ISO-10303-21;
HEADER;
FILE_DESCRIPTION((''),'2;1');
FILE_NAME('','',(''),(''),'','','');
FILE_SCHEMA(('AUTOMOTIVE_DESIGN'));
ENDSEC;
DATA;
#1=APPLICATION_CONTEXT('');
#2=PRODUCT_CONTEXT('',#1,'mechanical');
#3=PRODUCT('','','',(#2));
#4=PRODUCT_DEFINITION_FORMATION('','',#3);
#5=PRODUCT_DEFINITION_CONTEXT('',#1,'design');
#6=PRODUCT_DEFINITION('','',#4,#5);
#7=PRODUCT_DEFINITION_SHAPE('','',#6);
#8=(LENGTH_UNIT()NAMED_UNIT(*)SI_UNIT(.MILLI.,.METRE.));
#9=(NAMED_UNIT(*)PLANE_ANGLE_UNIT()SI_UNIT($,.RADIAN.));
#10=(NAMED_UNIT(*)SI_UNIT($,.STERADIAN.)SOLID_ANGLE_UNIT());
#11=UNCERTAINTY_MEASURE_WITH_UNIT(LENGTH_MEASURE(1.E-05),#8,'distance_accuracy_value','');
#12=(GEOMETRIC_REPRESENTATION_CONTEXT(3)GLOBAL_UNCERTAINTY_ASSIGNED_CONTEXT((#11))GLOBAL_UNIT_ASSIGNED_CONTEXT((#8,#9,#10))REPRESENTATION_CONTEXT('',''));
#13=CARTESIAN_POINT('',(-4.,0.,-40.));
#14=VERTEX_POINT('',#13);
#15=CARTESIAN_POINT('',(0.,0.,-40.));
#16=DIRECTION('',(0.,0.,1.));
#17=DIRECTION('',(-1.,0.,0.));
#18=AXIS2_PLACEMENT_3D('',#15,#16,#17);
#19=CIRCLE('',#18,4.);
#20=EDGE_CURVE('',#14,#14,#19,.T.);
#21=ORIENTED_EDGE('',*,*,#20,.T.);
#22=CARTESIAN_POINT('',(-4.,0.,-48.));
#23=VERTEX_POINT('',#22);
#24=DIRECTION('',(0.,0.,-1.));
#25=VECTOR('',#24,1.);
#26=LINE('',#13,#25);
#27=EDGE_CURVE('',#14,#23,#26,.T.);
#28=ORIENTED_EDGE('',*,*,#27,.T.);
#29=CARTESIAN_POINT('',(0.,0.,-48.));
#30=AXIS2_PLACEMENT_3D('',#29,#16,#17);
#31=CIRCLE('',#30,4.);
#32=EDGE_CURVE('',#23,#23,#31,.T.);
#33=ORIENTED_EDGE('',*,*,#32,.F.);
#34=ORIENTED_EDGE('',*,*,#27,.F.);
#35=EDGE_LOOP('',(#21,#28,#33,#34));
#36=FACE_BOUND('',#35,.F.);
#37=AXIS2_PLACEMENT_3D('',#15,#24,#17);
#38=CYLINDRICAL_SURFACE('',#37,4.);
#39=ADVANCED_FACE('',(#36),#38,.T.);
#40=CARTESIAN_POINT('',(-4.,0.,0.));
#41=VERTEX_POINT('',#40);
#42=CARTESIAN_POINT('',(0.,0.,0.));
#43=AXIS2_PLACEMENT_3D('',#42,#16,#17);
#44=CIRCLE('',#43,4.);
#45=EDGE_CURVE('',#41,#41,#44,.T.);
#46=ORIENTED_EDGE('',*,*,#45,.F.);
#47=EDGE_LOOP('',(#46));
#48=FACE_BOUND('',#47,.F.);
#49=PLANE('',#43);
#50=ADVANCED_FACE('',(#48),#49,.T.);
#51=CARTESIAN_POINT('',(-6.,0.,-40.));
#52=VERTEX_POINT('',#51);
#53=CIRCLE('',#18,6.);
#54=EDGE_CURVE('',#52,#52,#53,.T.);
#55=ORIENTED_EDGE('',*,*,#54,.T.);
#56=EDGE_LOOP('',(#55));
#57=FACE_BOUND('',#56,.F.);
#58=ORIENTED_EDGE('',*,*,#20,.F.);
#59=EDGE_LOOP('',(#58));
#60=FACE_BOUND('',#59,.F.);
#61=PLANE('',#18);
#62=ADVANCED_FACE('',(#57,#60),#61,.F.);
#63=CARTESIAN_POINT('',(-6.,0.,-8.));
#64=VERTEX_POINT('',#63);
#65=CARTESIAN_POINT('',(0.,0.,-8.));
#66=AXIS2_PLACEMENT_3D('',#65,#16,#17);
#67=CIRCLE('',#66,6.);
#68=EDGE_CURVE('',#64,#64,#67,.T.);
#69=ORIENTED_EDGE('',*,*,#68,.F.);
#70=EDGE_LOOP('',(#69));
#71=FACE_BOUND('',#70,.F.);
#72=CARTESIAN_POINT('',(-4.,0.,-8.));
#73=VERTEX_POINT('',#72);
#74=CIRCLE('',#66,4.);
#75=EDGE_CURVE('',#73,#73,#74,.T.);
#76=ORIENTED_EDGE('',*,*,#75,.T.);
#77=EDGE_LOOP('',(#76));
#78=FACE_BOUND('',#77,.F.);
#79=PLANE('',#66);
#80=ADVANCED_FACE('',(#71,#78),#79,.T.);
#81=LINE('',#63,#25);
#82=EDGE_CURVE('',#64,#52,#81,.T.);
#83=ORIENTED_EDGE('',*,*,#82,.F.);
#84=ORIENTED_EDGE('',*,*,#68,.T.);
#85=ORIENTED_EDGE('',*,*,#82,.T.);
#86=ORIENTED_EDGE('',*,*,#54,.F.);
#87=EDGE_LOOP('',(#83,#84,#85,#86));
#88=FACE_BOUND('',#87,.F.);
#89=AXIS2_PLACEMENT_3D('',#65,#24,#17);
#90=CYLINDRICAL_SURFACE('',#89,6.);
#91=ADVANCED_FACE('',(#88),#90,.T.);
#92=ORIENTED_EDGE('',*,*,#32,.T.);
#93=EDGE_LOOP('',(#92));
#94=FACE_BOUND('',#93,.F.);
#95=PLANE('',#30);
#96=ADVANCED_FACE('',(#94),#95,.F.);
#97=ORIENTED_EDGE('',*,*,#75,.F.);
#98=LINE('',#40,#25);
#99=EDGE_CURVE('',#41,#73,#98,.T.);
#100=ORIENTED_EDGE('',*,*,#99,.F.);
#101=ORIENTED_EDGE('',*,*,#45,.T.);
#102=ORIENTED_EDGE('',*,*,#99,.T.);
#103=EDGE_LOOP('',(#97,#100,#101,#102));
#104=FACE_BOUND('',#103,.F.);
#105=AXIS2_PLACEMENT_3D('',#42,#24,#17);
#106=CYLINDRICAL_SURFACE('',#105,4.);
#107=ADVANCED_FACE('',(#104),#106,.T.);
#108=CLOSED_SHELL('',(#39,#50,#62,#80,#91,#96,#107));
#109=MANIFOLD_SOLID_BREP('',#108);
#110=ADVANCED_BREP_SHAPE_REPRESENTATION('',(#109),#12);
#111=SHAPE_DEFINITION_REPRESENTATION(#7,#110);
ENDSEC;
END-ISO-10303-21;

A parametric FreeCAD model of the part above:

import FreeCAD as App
import Part
import Sketcher


def add_polygon(sketch, points):
    """Adds a closed chain of lines whose ends are joined by coincident constraints."""
    first, n = sketch.GeometryCount, len(points)
    for a, b in zip(points, points[1:] + points[:1]):
        sketch.addGeometry(Part.LineSegment(App.Vector(*a, 0), App.Vector(*b, 0)), False)
    for i in range(n):
        sketch.addConstraint(Sketcher.Constraint("Coincident", first + i, 2, first + (i + 1) % n, 1))

doc = App.newDocument("Part")
body = doc.addObject("PartDesign::Body", "Body")

# Sketch on XZ plane
sketch1 = body.newObject("Sketcher::SketchObject", "Sketch")
sketch1.AttachmentSupport = (doc.getObject("XZ_Plane"), [""])
sketch1.MapMode = "FlatFace"
add_polygon(sketch1, [(-4, 0), (0, 0), (0, -48), (-4, -48), (-4, -40), (-6, -40), (-6, -8), (-4, -8)])  # lines 0-7
sketch1.addConstraint(Sketcher.Constraint("Horizontal", 0))
sketch1.addConstraint(Sketcher.Constraint("Vertical", 1))
sketch1.addConstraint(Sketcher.Constraint("Horizontal", 2))
sketch1.addConstraint(Sketcher.Constraint("Vertical", 3))
sketch1.addConstraint(Sketcher.Constraint("Horizontal", 4))
sketch1.addConstraint(Sketcher.Constraint("Vertical", 5))
sketch1.addConstraint(Sketcher.Constraint("Horizontal", 6))
sketch1.addConstraint(Sketcher.Constraint("Vertical", 7))
sketch1.addConstraint(Sketcher.Constraint("Coincident", 0, 2, -1, 1))
sketch1.addConstraint(Sketcher.Constraint("Vertical", 3, 2, 6, 2))
sketch1.addConstraint(Sketcher.Constraint("Equal", 3, 7))
sketch1.addConstraint(Sketcher.Constraint("DistanceY", 3, 1, 3, 2, 8.0))
sketch1.addConstraint(Sketcher.Constraint("DistanceY", 5, 1, 5, 2, 32.0))
sketch1.addConstraint(Sketcher.Constraint("DistanceX", 0, 1, 0, 2, 4.0))
sketch1.addConstraint(Sketcher.Constraint("DistanceX", 4, 2, 4, 1, 2.0))
revolution = body.newObject("PartDesign::Revolution", "Revolution")
revolution.Profile = sketch1
revolution.ReferenceAxis = (sketch1, ["V_Axis"])
revolution.Angle = 360

doc.recompute()
